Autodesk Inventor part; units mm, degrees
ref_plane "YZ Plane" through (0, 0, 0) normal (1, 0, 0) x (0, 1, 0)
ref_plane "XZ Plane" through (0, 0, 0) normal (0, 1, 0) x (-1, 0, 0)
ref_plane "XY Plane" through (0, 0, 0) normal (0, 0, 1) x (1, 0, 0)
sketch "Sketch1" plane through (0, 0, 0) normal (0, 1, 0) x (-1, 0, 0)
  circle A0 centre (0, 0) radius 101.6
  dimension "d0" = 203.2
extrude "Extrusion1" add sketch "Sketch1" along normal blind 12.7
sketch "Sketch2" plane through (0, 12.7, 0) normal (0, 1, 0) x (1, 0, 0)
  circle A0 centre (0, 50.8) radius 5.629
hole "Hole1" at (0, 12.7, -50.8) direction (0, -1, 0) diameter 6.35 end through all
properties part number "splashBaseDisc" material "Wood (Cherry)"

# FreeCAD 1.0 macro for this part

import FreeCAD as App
import Part
import Sketcher
Q = App.Units.Quantity

doc = App.newDocument("Part")
body = doc.addObject("PartDesign::Body", "Body")

sketch1 = body.newObject("Sketcher::SketchObject", "Sketch")
sketch1.AttachmentSupport = (doc.getObject("XZ_Plane"), [""])
sketch1.MapMode = "FlatFace"
sketch1.addGeometry(Part.Circle(App.Vector(0, 0, 0), App.Vector(0, 0, 1), 102), False)
sketch1.addConstraint(Sketcher.Constraint("Coincident", 0, 3, -1, 1))
sketch1.addConstraint(Sketcher.Constraint("Diameter", 0, Q("8 in")))
pad1 = body.newObject("PartDesign::Pad", "Pad")
pad1.Profile = sketch1
pad1.Length = Q("0.5 in")
pad1.Reversed = True

sketch2 = body.newObject("Sketcher::SketchObject", "Sketch001")
sketch2.AttachmentSupport = (doc.getObject("XZ_Plane"), [""])
sketch2.MapMode = "FlatFace"
sketch2.AttachmentOffset = App.Placement(App.Vector(0, 0, -0.5 * 25.4), App.Rotation())
sketch2.addGeometry(Part.Circle(App.Vector(0, -50.8, 0), App.Vector(0, 0, 1), 3.2), False)
sketch2.addConstraint(Sketcher.Constraint("PointOnObject", 0, 3, -2))
sketch2.addConstraint(Sketcher.Constraint("Diameter", 0, Q("0.25 in")))
sketch2.addConstraint(Sketcher.Constraint("DistanceY", 0, 3, -1, 1, Q("2 in")))
doc.recompute()
hole = body.newObject("PartDesign::Hole", "Hole")
hole.Profile = sketch2
hole.ThreadType = "None"
hole.Diameter = Q("0.25 in")
hole.DepthType = "ThroughAll"
hole.Reversed = True

doc.recompute()
